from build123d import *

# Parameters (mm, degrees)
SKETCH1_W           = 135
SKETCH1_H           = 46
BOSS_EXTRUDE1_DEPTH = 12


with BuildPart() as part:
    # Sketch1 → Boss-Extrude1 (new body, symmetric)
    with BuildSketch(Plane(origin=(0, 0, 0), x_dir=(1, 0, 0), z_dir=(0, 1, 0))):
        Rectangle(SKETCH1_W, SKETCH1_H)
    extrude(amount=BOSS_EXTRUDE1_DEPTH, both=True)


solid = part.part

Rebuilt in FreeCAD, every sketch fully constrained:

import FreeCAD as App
import Part
import Sketcher
from FreeCAD import Vector
Q = App.Units.Quantity


def add_polygon(sketch, points):
    """Adds a closed chain of lines whose ends are joined by coincident constraints."""
    first, n = sketch.GeometryCount, len(points)
    for a, b in zip(points, points[1:] + points[:1]):
        sketch.addGeometry(Part.LineSegment(App.Vector(*a, 0), App.Vector(*b, 0)), False)
    for i in range(n):
        sketch.addConstraint(Sketcher.Constraint("Coincident", first + i, 2, first + (i + 1) % n, 1))

doc = App.newDocument("Part")
body = doc.addObject("PartDesign::Body", "Body")

# Sketch on XZ plane
sketch1 = body.newObject("Sketcher::SketchObject", "Sketch")
sketch1.AttachmentSupport = (doc.getObject("XZ_Plane"), [""])
sketch1.MapMode = "FlatFace"
add_polygon(sketch1, [(-68, -23), (-68, 23), (68, 23), (68, -23)])  # lines 0-3
sketch1.addConstraint([
    Sketcher.Constraint("Vertical", 0),
    Sketcher.Constraint("Horizontal", 1),
    Sketcher.Constraint("Vertical", 2),
    Sketcher.Constraint("Horizontal", 3),
    Sketcher.Constraint("Symmetric", 0, 2, 2, 2, -1, 1),
    Sketcher.Constraint("DistanceX", 1, 1, 1, 2, Q("135 mm")),
    Sketcher.Constraint("DistanceY", 0, 1, 0, 2, Q("46 mm")),
])
pad1 = body.newObject("PartDesign::Pad", "Pad")
pad1.Profile = sketch1
pad1.Length = 24
pad1.Midplane = True

doc.recompute()
